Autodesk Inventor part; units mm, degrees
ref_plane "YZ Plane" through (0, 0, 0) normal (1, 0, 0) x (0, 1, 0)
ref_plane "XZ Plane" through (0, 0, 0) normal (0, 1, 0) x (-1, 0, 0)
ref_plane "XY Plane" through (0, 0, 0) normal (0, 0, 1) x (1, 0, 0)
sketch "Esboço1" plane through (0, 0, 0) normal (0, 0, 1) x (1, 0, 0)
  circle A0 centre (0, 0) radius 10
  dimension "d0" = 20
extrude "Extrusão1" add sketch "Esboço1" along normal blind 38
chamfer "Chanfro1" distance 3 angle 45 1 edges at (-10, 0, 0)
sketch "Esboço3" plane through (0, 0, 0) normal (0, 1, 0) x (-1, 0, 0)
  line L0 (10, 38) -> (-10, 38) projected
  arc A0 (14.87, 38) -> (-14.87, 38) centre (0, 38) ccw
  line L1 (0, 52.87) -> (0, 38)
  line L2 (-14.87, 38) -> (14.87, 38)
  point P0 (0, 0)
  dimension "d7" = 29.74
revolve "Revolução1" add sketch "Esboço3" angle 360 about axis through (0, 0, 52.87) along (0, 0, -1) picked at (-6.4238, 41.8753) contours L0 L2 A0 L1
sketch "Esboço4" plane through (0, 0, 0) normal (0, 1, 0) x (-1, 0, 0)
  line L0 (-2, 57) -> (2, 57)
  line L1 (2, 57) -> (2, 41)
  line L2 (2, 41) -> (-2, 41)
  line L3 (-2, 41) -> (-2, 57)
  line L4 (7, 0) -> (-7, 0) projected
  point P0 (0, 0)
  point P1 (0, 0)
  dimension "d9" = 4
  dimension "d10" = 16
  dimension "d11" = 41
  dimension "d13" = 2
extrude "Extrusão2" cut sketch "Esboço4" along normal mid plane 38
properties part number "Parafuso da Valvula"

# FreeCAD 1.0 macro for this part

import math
import FreeCAD as App
import Part
import Sketcher
from FreeCAD import Vector
Q = App.Units.Quantity


def edges_at(feature, points):
    """Names of the edges that pass closest to the given points."""
    edges = feature.Shape.Edges
    near = lambda p: min(range(len(edges)), key=lambda i: edges[i].distToShape(Part.Vertex(*p))[0])
    return sorted({f"Edge{near(p) + 1}" for p in points})


def add_polygon(sketch, points):
    """Adds a closed chain of lines whose ends are joined by coincident constraints."""
    first, n = sketch.GeometryCount, len(points)
    for a, b in zip(points, points[1:] + points[:1]):
        sketch.addGeometry(Part.LineSegment(App.Vector(*a, 0), App.Vector(*b, 0)), False)
    for i in range(n):
        sketch.addConstraint(Sketcher.Constraint("Coincident", first + i, 2, first + (i + 1) % n, 1))

doc = App.newDocument("Part")
body = doc.addObject("PartDesign::Body", "Body")

sketch1 = doc.addObject("Sketcher::SketchObject", "Sketch")
body.addObject(sketch1)
sketch1.AttachmentSupport = (doc.XY_Plane, [""])
sketch1.MapMode = "FlatFace"
sketch1.addGeometry(Part.Circle(Vector(0, 0, 0), Vector(0, 0, 1), 10), False)
sketch1.addConstraint([
    Sketcher.Constraint("Coincident", 0, 3, -1, 1),
    Sketcher.Constraint("Diameter", 0, Q("20 mm")),
])
pad1 = doc.addObject("PartDesign::Pad", "Pad")
body.addObject(pad1)
pad1.Profile = sketch1
pad1.Length = 38
doc.recompute()

chamfer = doc.addObject("PartDesign::Chamfer", "Chamfer")
body.addObject(chamfer)
chamfer.Base = (pad1, edges_at(pad1, [(-10, 0, 0)]))
chamfer.Size = 3

sketch2 = doc.addObject("Sketcher::SketchObject", "Sketch001")
body.addObject(sketch2)
sketch2.AttachmentSupport = (doc.XZ_Plane, [""])
sketch2.MapMode = "FlatFace"
sketch2.addGeometry([
    Part.LineSegment(Vector(15, 38, 0), Vector(0, 38, 0)),
    Part.LineSegment(Vector(0, 38, 0), Vector(0, 53, 0)),
    Part.ArcOfCircle(Part.Circle(Vector(0, 38, 0), Vector(0, 0, 1), 15), math.radians(0), math.radians(90)),
], False)
sketch2.addConstraint([
    Sketcher.Constraint("Coincident", 0, 2, 1, 1),
    Sketcher.Constraint("Coincident", 1, 2, 2, 2),
    Sketcher.Constraint("Coincident", 2, 1, 0, 1),
    Sketcher.Constraint("Horizontal", 0),
    Sketcher.Constraint("Vertical", 1),
    Sketcher.Constraint("Coincident", 0, 2, 2, 3),
    Sketcher.Constraint("PointOnObject", 2, 3, -2),
    Sketcher.Constraint("Radius", 2, Q("14.87 mm")),
    Sketcher.Constraint("DistanceY", -1, 1, 2, 3, Q("38 mm")),
])
revolution = doc.addObject("PartDesign::Revolution", "Revolution")
body.addObject(revolution)
revolution.Profile = sketch2
revolution.ReferenceAxis = (sketch2, ["V_Axis"])
revolution.Angle = 360

sketch3 = doc.addObject("Sketcher::SketchObject", "Sketch002")
body.addObject(sketch3)
sketch3.AttachmentSupport = (doc.XZ_Plane, [""])
sketch3.MapMode = "FlatFace"
add_polygon(sketch3, [(-2, 57), (2, 57), (2, 41), (-2, 41)])
sketch3.addConstraint([
    Sketcher.Constraint("Horizontal", 0),
    Sketcher.Constraint("Vertical", 1),
    Sketcher.Constraint("Horizontal", 2),
    Sketcher.Constraint("Vertical", 3),
    Sketcher.Constraint("DistanceX", 0, 1, 0, 2, Q("4 mm")),
    Sketcher.Constraint("DistanceY", 1, 2, 1, 1, Q("16 mm")),
    Sketcher.Constraint("DistanceX", -1, 1, 0, 2, Q("2 mm")),
    Sketcher.Constraint("DistanceY", -1, 1, 1, 2, Q("41 mm")),
])
pocket1 = doc.addObject("PartDesign::Pocket", "Pocket")
body.addObject(pocket1)
pocket1.Profile = sketch3
pocket1.Length = 38
pocket1.Midplane = True

doc.recompute()
